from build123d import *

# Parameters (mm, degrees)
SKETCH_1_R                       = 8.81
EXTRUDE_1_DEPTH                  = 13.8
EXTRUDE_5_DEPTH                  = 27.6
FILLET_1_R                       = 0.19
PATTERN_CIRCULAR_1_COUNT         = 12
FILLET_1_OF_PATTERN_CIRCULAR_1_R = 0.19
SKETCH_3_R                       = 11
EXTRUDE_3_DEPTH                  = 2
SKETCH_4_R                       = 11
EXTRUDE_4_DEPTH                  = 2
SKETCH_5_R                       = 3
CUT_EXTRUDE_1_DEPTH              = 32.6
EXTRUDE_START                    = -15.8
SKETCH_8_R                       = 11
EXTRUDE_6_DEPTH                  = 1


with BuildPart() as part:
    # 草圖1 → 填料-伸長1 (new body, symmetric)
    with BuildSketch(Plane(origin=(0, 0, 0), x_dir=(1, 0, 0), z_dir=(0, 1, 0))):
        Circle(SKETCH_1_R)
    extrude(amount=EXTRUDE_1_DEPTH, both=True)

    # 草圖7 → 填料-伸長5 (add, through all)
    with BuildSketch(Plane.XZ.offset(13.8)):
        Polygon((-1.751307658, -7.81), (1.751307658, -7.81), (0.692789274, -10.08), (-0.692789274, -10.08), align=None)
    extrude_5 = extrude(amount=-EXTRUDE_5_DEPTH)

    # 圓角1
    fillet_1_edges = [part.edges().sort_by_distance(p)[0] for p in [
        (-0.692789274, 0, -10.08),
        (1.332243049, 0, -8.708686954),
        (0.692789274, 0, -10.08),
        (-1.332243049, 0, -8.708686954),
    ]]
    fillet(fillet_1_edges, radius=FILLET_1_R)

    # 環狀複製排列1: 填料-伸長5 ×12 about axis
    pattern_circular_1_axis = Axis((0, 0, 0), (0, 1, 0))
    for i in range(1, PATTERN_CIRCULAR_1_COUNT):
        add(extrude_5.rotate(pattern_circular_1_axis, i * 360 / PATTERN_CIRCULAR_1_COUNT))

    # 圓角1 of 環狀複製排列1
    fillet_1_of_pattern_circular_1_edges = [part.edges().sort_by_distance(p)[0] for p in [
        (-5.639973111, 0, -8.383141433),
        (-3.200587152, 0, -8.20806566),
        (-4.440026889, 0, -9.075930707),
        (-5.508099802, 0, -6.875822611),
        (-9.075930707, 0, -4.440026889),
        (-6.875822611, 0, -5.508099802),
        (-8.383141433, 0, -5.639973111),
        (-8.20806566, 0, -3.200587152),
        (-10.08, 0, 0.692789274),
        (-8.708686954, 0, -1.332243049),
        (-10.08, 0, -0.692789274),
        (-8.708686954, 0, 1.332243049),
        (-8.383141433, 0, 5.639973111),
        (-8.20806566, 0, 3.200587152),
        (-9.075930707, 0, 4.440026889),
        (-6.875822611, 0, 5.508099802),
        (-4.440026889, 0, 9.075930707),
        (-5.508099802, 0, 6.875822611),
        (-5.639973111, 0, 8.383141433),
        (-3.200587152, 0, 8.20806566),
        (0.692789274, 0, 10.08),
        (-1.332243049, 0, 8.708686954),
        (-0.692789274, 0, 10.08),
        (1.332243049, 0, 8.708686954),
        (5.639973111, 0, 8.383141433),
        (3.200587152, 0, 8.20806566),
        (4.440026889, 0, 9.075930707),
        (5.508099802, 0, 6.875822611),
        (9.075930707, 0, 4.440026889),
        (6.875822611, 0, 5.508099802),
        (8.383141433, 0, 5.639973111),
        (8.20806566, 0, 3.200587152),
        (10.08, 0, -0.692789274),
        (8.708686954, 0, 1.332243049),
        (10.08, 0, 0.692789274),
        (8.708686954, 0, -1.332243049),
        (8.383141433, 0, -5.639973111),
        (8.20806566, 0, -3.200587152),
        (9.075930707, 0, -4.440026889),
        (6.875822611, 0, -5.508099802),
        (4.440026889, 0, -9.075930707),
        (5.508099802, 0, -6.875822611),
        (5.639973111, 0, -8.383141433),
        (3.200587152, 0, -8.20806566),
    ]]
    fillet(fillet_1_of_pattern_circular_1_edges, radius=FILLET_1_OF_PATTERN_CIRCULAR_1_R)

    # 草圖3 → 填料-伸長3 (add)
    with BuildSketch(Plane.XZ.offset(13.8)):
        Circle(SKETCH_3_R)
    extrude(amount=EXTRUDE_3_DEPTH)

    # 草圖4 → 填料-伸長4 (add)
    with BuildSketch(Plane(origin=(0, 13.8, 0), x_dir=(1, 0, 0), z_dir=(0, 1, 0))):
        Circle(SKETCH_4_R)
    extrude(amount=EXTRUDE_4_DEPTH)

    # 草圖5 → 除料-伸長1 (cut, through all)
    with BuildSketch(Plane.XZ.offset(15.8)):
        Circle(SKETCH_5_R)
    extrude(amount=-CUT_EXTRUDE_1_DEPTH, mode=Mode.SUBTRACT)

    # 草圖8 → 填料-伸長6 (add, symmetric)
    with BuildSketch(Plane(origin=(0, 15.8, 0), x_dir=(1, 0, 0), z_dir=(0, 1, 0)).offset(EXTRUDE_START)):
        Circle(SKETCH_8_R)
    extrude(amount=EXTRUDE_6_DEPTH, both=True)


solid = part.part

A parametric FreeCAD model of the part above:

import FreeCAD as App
import Part
import Sketcher
Q = App.Units.Quantity


def edges_at(feature, points):
    """Names of the edges that pass closest to the given points."""
    edges = feature.Shape.Edges
    near = lambda p: min(range(len(edges)), key=lambda i: edges[i].distToShape(Part.Vertex(*p))[0])
    return sorted({f"Edge{near(p) + 1}" for p in points})

doc = App.newDocument("Part")
body = doc.addObject("PartDesign::Body", "Body")

# Sketch on XZ plane
sketch1 = body.newObject("Sketcher::SketchObject", "Sketch")
sketch1.AttachmentSupport = (doc.getObject("XZ_Plane"), [""])
sketch1.MapMode = "FlatFace"
sketch1.addGeometry(Part.Circle(App.Vector(0, 0, 0), App.Vector(0, 0, 1), 9), False)
sketch1.addConstraint([
    Sketcher.Constraint("Coincident", 0, 3, -1, 1),
    Sketcher.Constraint("Diameter", 0, Q("17.62 mm")),
])
pad1 = body.newObject("PartDesign::Pad", "Pad")
pad1.Profile = sketch1
pad1.Length = 27.6
pad1.Midplane = True

# Sketch on XZ plane
sketch2 = body.newObject("Sketcher::SketchObject", "Sketch001")
sketch2.AttachmentSupport = (doc.getObject("XZ_Plane"), [""])
sketch2.MapMode = "FlatFace"
sketch2.AttachmentOffset = App.Placement(App.Vector(0, 0, 13.8), App.Rotation())
sketch2.addGeometry([
    Part.LineSegment(App.Vector(1.8, -7.8, 0), App.Vector(-1.8, -7.8, 0)),
    Part.LineSegment(App.Vector(-1.8, -7.8, 0), App.Vector(-0.7, -10.1, 0)),
    Part.LineSegment(App.Vector(-0.7, -10.1, 0), App.Vector(0.7, -10.1, 0)),
    Part.LineSegment(App.Vector(0.7, -10.1, 0), App.Vector(1.8, -7.8, 0)),
], False)
sketch2.addConstraint([
    Sketcher.Constraint("Coincident", 0, 2, 1, 1),
    Sketcher.Constraint("Coincident", 1, 2, 2, 1),
    Sketcher.Constraint("Coincident", 2, 2, 3, 1),
    Sketcher.Constraint("Coincident", 3, 2, 0, 1),
    Sketcher.Constraint("Horizontal", 0),
    Sketcher.Constraint("Horizontal", 2),
    Sketcher.Constraint("Equal", 1, 3),
    Sketcher.Constraint("Angle", 1, Q("-65 deg")),
    Sketcher.Constraint("DistanceY", 0, 2, -1, 1, Q("7.81 mm")),
    Sketcher.Constraint("DistanceY", 1, 2, -1, 1, Q("10.08 mm")),
    Sketcher.Constraint("DistanceX", 2, 1, 2, 2, Q("1.385579 mm")),
    Sketcher.Constraint("DistanceX", 1, 2, -1, 1, Q("0.692789 mm")),
])
pad2 = body.newObject("PartDesign::Pad", "Pad001")
pad2.Profile = sketch2
pad2.Type = "UpToLast"
pad2.Reversed = True
doc.recompute()

fillet = body.newObject("PartDesign::Fillet", "Fillet")
fillet.Base = (pad2, edges_at(pad2, [
    (-0.693, 0, -10.08),
    (1.332, 0, -8.709),
    (0.693, 0, -10.08),
    (-1.332, 0, -8.709),
]))
fillet.Radius = 0.19
doc.recompute()

polarpattern = body.newObject("PartDesign::PolarPattern", "PolarPattern")
polarpattern.Originals = [pad2]
polarpattern.Axis = (doc.getObject("Y_Axis"), [""])
polarpattern.Angle = 360
polarpattern.Occurrences = 12
body.Tip = polarpattern
doc.recompute()

fillet2 = body.newObject("PartDesign::Fillet", "Fillet001")
fillet2.Base = (polarpattern, edges_at(polarpattern, [
    (-5.64, 0, -8.383),
    (-3.201, 0, -8.208),
    (-4.44, 0, -9.076),
    (-5.508, 0, -6.876),
    (-9.076, 0, -4.44),
    (-6.876, 0, -5.508),
    (-8.383, 0, -5.64),
    (-8.208, 0, -3.201),
    (-10.08, 0, 0.693),
    (-8.709, 0, -1.332),
    (-10.08, 0, -0.693),
    (-8.709, 0, 1.332),
    (-8.383, 0, 5.64),
    (-8.208, 0, 3.201),
    (-9.076, 0, 4.44),
    (-6.876, 0, 5.508),
    (-4.44, 0, 9.076),
    (-5.508, 0, 6.876),
    (-5.64, 0, 8.383),
    (-3.201, 0, 8.208),
    (0.693, 0, 10.08),
    (-1.332, 0, 8.709),
    (-0.693, 0, 10.08),
    (1.332, 0, 8.709),
    (5.64, 0, 8.383),
    (3.201, 0, 8.208),
    (4.44, 0, 9.076),
    (5.508, 0, 6.876),
    (9.076, 0, 4.44),
    (6.876, 0, 5.508),
    (8.383, 0, 5.64),
    (8.208, 0, 3.201),
    (10.08, 0, -0.693),
    (8.709, 0, 1.332),
    (10.08, 0, 0.693),
    (8.709, 0, -1.332),
    (8.383, 0, -5.64),
    (8.208, 0, -3.201),
    (9.076, 0, -4.44),
    (6.876, 0, -5.508),
    (4.44, 0, -9.076),
    (5.508, 0, -6.876),
    (5.64, 0, -8.383),
    (3.201, 0, -8.208),
]))
fillet2.Radius = 0.19

# Sketch on XZ plane
sketch3 = body.newObject("Sketcher::SketchObject", "Sketch002")
sketch3.AttachmentSupport = (doc.getObject("XZ_Plane"), [""])
sketch3.MapMode = "FlatFace"
sketch3.AttachmentOffset = App.Placement(App.Vector(0, 0, 13.8), App.Rotation())
sketch3.addGeometry(Part.Circle(App.Vector(0, 0, 0), App.Vector(0, 0, 1), 11), False)
sketch3.addConstraint([
    Sketcher.Constraint("Coincident", 0, 3, -1, 1),
    Sketcher.Constraint("Diameter", 0, Q("22 mm")),
])
pad3 = body.newObject("PartDesign::Pad", "Pad002")
pad3.Profile = sketch3
pad3.Length = 2

# Sketch on XZ plane
sketch4 = body.newObject("Sketcher::SketchObject", "Sketch003")
sketch4.AttachmentSupport = (doc.getObject("XZ_Plane"), [""])
sketch4.MapMode = "FlatFace"
sketch4.AttachmentOffset = App.Placement(App.Vector(0, 0, -13.8), App.Rotation())
sketch4.addGeometry(Part.Circle(App.Vector(0, 0, 0), App.Vector(0, 0, 1), 11), False)
sketch4.addConstraint([
    Sketcher.Constraint("Coincident", 0, 3, -1, 1),
    Sketcher.Constraint("Diameter", 0, Q("22 mm")),
])
pad4 = body.newObject("PartDesign::Pad", "Pad003")
pad4.Profile = sketch4
pad4.Length = 2
pad4.Reversed = True

# Sketch on XZ plane
sketch5 = body.newObject("Sketcher::SketchObject", "Sketch004")
sketch5.AttachmentSupport = (doc.getObject("XZ_Plane"), [""])
sketch5.MapMode = "FlatFace"
sketch5.AttachmentOffset = App.Placement(App.Vector(0, 0, 15.8), App.Rotation())
sketch5.addGeometry(Part.Circle(App.Vector(0, 0, 0), App.Vector(0, 0, 1), 3), False)
sketch5.addConstraint([
    Sketcher.Constraint("Coincident", 0, 3, -1, 1),
    Sketcher.Constraint("Diameter", 0, Q("6 mm")),
])
pocket1 = body.newObject("PartDesign::Pocket", "Pocket")
pocket1.Profile = sketch5
pocket1.Type = "ThroughAll"

# Sketch on XZ plane
sketch6 = body.newObject("Sketcher::SketchObject", "Sketch005")
sketch6.AttachmentSupport = (doc.getObject("XZ_Plane"), [""])
sketch6.MapMode = "FlatFace"
sketch6.addGeometry(Part.Circle(App.Vector(0, 0, 0), App.Vector(0, 0, 1), 11), False)
sketch6.addConstraint([
    Sketcher.Constraint("Coincident", 0, 3, -1, 1),
    Sketcher.Constraint("Diameter", 0, Q("22 mm")),
])
pad5 = body.newObject("PartDesign::Pad", "Pad004")
pad5.Profile = sketch6
pad5.Length = 2
pad5.Midplane = True

doc.recompute()
